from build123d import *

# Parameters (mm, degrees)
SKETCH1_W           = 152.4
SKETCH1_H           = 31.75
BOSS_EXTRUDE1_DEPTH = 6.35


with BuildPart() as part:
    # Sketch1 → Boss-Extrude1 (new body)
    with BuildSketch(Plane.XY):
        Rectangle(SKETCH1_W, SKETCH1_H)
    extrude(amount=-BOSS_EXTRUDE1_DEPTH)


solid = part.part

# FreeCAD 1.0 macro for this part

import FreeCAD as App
import Part
import Sketcher
from FreeCAD import Vector
Q = App.Units.Quantity

doc = App.newDocument("Part")
body = doc.addObject("PartDesign::Body", "Body")

sketch1 = body.newObject("Sketcher::SketchObject", "Sketch")
sketch1.AttachmentSupport = (doc.getObject("XY_Plane"), [""])
sketch1.MapMode = "FlatFace"
sketch1.addGeometry(Part.LineSegment(Vector(-76, 16, 0), Vector(-76, -16, 0)), False)
sketch1.addGeometry(Part.LineSegment(Vector(-76, -16, 0), Vector(76, -16, 0)), False)
sketch1.addGeometry(Part.LineSegment(Vector(76, -16, 0), Vector(76, 16, 0)), False)
sketch1.addGeometry(Part.LineSegment(Vector(76, 16, 0), Vector(-76, 16, 0)), False)
sketch1.addConstraint(Sketcher.Constraint("Coincident", 0, 2, 1, 1))
sketch1.addConstraint(Sketcher.Constraint("Coincident", 1, 2, 2, 1))
sketch1.addConstraint(Sketcher.Constraint("Coincident", 2, 2, 3, 1))
sketch1.addConstraint(Sketcher.Constraint("Coincident", 3, 2, 0, 1))
sketch1.addConstraint(Sketcher.Constraint("Vertical", 0))
sketch1.addConstraint(Sketcher.Constraint("Horizontal", 1))
sketch1.addConstraint(Sketcher.Constraint("Vertical", 2))
sketch1.addConstraint(Sketcher.Constraint("Horizontal", 3))
sketch1.addConstraint(Sketcher.Constraint("Symmetric", 0, 2, 2, 2, -1, 1))
sketch1.addConstraint(Sketcher.Constraint("DistanceX", 1, 1, 1, 2, Q("6 in")))
sketch1.addConstraint(Sketcher.Constraint("DistanceY", 0, 2, 0, 1, Q("1.25 in")))
pad1 = body.newObject("PartDesign::Pad", "Pad")
pad1.Profile = sketch1
pad1.Length = Q("0.25 in")
pad1.Reversed = True

doc.recompute()
